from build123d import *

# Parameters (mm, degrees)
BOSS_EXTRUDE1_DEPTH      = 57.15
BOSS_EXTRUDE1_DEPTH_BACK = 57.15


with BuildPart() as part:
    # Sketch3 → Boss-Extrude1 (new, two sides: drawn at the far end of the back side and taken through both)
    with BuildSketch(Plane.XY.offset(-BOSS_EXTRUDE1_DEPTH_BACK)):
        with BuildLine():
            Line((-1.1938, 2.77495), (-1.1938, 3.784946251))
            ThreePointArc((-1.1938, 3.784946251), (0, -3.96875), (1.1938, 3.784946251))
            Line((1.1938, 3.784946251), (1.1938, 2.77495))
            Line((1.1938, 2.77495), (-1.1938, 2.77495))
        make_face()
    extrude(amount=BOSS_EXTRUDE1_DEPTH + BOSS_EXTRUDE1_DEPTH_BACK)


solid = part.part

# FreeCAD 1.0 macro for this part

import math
import FreeCAD as App
import Part
import Sketcher

V = App.Vector
Q = App.Units.Quantity

doc = App.newDocument("Part")
body = doc.addObject("PartDesign::Body", "Body")

sketch1 = body.newObject("Sketcher::SketchObject", "Sketch")
sketch1.AttachmentSupport = (doc.getObject("XY_Plane"), [""])
sketch1.MapMode = "FlatFace"
sketch1.addGeometry([
    Part.LineSegment(V(-1.2, 2.8, 0), V(-1.2, 3.8, 0)),
    Part.ArcOfCircle(Part.Circle(V(0, 0, 0), V(0, 0, 1), 4), math.radians(108), math.radians(432)),
    Part.LineSegment(V(1.2, 3.8, 0), V(1.2, 2.8, 0)),
    Part.LineSegment(V(1.2, 2.8, 0), V(-1.2, 2.8, 0)),
], False)
sketch1.addConstraint([
    Sketcher.Constraint("Coincident", 0, 2, 1, 1),
    Sketcher.Constraint("Coincident", 1, 2, 2, 1),
    Sketcher.Constraint("Coincident", 2, 2, 3, 1),
    Sketcher.Constraint("Coincident", 3, 2, 0, 1),
    Sketcher.Constraint("Vertical", 0),
    Sketcher.Constraint("Vertical", 2),
    Sketcher.Constraint("Horizontal", 3),
    Sketcher.Constraint("Coincident", 1, 3, -1, 1),
    Sketcher.Constraint("Horizontal", 0, 2, 1, 2),
    Sketcher.Constraint("Radius", 1, Q("0.15625 in")),
    Sketcher.Constraint("DistanceX", 3, 2, 3, 1, Q("0.094 in")),
    Sketcher.Constraint("DistanceY", 0, 1, 0, 2, Q("1.009996 mm")),
])
pad1 = body.newObject("PartDesign::Pad", "Pad")
pad1.Profile = sketch1
pad1.Type = "TwoLengths"
pad1.Length = Q("2.25 in")
pad1.Length2 = Q("2.25 in")

doc.recompute()
